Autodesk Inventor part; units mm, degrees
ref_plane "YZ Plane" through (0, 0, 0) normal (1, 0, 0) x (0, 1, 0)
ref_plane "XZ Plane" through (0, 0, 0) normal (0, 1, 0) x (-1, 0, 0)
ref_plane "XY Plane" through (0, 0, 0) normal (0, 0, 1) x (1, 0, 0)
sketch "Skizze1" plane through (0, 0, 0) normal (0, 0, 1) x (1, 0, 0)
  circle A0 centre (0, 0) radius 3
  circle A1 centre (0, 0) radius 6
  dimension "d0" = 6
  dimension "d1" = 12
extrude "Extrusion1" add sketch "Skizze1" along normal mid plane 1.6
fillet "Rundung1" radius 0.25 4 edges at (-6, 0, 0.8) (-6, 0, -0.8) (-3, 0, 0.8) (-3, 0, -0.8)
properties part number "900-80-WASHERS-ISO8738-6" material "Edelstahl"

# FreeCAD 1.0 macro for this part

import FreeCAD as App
import Part
import Sketcher

V = App.Vector
Q = App.Units.Quantity


def edges_at(feature, points):
    """Names of the edges that pass closest to the given points."""
    edges = feature.Shape.Edges
    near = lambda p: min(range(len(edges)), key=lambda i: edges[i].distToShape(Part.Vertex(*p))[0])
    return sorted({f"Edge{near(p) + 1}" for p in points})

doc = App.newDocument("Part")
body = doc.addObject("PartDesign::Body", "Body")

sketch1 = body.newObject("Sketcher::SketchObject", "Sketch")
sketch1.AttachmentSupport = (doc.getObject("XY_Plane"), [""])
sketch1.MapMode = "FlatFace"
sketch1.addGeometry(Part.Circle(V(0, 0, 0), V(0, 0, 1), 6), False)
sketch1.addGeometry(Part.Circle(V(0, 0, 0), V(0, 0, 1), 3), False)
sketch1.addConstraint(Sketcher.Constraint("Coincident", 0, 3, -1, 1))
sketch1.addConstraint(Sketcher.Constraint("Coincident", 1, 3, -1, 1))
sketch1.addConstraint(Sketcher.Constraint("Diameter", 0, Q("12 mm")))
sketch1.addConstraint(Sketcher.Constraint("Diameter", 1, Q("6 mm")))
pad1 = body.newObject("PartDesign::Pad", "Pad")
pad1.Profile = sketch1
pad1.Length = 1.6
pad1.Midplane = True
doc.recompute()

fillet = body.newObject("PartDesign::Fillet", "Fillet")
fillet.Base = (pad1, edges_at(pad1, [
    (-6, 0, 0.8),
    (-6, 0, -0.8),
    (-3, 0, 0.8),
    (-3, 0, -0.8),
]))
fillet.Radius = 0.25

doc.recompute()
